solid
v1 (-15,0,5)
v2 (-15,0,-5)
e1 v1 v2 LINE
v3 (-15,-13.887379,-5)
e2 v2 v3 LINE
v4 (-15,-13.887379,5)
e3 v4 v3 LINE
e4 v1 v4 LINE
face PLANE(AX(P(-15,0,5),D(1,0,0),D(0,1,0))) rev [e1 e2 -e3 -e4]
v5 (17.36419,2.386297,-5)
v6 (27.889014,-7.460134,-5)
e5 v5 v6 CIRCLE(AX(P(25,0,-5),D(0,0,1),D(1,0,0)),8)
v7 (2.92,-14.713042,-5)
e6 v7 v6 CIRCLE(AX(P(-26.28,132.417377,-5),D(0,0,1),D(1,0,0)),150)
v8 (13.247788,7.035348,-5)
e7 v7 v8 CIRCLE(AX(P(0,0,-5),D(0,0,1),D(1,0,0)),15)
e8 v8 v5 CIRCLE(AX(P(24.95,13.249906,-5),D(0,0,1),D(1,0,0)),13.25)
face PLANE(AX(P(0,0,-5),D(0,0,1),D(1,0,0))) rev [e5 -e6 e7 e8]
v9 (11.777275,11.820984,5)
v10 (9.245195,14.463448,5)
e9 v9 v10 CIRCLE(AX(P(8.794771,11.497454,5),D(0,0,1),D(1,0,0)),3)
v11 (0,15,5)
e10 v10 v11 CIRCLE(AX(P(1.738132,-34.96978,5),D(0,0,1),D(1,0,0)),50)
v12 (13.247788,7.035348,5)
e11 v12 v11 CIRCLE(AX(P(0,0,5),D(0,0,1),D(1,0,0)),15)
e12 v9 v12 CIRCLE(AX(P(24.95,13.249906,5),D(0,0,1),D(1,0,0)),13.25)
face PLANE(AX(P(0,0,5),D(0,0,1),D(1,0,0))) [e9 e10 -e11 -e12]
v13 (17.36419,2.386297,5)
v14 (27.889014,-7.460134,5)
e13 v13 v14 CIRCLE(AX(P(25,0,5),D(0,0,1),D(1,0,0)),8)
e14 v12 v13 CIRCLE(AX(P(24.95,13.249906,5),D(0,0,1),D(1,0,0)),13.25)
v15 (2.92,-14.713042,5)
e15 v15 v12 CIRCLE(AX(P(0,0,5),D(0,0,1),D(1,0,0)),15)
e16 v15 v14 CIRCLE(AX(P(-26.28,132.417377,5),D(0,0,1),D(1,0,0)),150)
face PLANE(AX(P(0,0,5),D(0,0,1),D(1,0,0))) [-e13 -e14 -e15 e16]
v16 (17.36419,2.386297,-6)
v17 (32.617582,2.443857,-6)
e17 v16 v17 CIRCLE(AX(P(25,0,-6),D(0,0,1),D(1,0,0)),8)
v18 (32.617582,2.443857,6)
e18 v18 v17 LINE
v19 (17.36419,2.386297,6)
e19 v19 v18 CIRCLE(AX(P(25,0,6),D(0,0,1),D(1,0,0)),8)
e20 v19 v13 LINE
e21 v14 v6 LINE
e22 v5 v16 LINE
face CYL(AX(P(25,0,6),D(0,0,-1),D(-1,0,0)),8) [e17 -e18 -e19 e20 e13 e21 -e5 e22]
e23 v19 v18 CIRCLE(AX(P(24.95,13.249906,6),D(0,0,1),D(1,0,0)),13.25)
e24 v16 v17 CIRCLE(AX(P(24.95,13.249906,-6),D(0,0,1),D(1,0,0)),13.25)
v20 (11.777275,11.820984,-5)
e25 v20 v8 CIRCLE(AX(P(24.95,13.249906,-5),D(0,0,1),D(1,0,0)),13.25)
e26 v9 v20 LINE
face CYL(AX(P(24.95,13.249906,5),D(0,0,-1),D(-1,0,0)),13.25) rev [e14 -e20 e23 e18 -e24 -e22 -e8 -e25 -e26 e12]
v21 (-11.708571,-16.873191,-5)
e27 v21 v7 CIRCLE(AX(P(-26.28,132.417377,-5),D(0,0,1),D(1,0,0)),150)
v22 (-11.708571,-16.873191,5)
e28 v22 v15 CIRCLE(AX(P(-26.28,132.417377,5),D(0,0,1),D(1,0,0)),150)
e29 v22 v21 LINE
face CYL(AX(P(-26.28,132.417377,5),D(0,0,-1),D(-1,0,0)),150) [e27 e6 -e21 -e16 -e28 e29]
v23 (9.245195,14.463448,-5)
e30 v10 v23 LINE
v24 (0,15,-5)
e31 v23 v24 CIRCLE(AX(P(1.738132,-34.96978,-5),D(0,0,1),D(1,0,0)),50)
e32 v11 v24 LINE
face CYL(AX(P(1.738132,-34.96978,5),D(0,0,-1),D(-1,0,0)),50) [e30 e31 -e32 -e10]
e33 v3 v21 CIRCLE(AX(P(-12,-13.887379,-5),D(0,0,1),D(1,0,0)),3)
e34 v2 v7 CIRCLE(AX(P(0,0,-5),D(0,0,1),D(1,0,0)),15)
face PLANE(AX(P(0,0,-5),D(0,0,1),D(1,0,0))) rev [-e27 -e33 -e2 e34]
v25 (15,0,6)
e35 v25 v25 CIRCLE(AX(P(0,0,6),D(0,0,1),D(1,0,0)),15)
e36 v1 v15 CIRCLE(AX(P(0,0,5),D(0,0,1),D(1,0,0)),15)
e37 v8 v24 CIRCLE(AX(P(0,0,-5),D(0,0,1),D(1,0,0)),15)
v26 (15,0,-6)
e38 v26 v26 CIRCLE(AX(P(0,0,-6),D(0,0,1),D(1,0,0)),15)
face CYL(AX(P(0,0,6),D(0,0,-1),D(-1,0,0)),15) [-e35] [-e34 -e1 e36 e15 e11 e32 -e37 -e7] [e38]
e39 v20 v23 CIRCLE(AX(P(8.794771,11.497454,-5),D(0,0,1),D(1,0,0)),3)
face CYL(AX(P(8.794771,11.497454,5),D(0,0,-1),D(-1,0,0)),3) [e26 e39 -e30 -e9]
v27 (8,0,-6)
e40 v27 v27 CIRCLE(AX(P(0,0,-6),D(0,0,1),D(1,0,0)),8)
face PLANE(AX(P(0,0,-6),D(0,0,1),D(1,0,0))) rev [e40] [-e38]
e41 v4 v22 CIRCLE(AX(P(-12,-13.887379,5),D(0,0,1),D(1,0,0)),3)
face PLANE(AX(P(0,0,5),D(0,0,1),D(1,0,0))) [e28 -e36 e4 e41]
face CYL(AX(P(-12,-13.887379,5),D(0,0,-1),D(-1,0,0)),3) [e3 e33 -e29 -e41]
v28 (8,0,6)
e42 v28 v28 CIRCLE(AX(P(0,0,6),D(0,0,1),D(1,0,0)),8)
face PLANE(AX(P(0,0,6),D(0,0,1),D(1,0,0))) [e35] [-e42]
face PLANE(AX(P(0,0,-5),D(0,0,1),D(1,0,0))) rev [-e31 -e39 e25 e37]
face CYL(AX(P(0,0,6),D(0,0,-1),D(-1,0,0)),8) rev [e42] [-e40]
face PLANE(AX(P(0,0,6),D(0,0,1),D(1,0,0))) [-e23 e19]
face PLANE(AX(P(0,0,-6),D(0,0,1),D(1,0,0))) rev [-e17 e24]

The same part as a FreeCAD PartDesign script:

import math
import FreeCAD as App
import Part
import Sketcher
from FreeCAD import Vector

doc = App.newDocument("Part")
body = doc.addObject("PartDesign::Body", "Body")

# Sketch on XY plane
sketch1 = body.newObject("Sketcher::SketchObject", "Sketch")
sketch1.AttachmentSupport = (doc.getObject("XY_Plane"), [""])
sketch1.MapMode = "FlatFace"
sketch1.addGeometry(Part.Circle(Vector(0, 0, 0), Vector(0, 0, 1), 15), False)
sketch1.addGeometry(Part.Circle(Vector(0, 0, 0), Vector(0, 0, 1), 8), False)
sketch1.addConstraint(Sketcher.Constraint("Coincident", 0, 3, -1, 1))
sketch1.addConstraint(Sketcher.Constraint("Coincident", 1, 3, -1, 1))
sketch1.addConstraint(Sketcher.Constraint("Diameter", 0, 30.0))
sketch1.addConstraint(Sketcher.Constraint("Diameter", 1, 16.0))
pad1 = body.newObject("PartDesign::Pad", "Pad")
pad1.Profile = sketch1
pad1.Length = 12
pad1.Midplane = True
body2 = doc.addObject("PartDesign::Body", "Body001")

# Sketch on XY plane
sketch2 = body2.newObject("Sketcher::SketchObject", "Sketch001")
sketch2.AttachmentSupport = (doc.getObject("XY_Plane001"), [""])
sketch2.MapMode = "FlatFace"
sketch2.addGeometry(Part.ArcOfCircle(Part.Circle(Vector(25, 0, 0), Vector(0, 0, 1), 8), math.radians(163), math.radians(291)), False)
sketch2.addGeometry(Part.ArcOfCircle(Part.Circle(Vector(25, 0, 0), Vector(0, 0, 1), 8), math.radians(-69), math.radians(18)), False)
sketch2.addGeometry(Part.ArcOfCircle(Part.Circle(Vector(25, 13, 0), Vector(0, 0, 1), 13), math.radians(-125), math.radians(-55)), False)
sketch2.addConstraint(Sketcher.Constraint("Tangent", 0, 2, 1, 1))
sketch2.addConstraint(Sketcher.Constraint("Coincident", 1, 2, 2, 2))
sketch2.addConstraint(Sketcher.Constraint("Coincident", 2, 1, 0, 1))
sketch2.addConstraint(Sketcher.Constraint("Equal", 0, 1))
sketch2.addConstraint(Sketcher.Constraint("PointOnObject", 0, 3, -1))
sketch2.addConstraint(Sketcher.Constraint("Radius", 0, 8.0))
sketch2.addConstraint(Sketcher.Constraint("Radius", 2, 13.25))
sketch2.addConstraint(Sketcher.Constraint("DistanceX", -1, 1, 0, 3, 25.0))
sketch2.addConstraint(Sketcher.Constraint("DistanceX", -1, 1, 2, 3, 24.95))
sketch2.addConstraint(Sketcher.Constraint("DistanceX", -1, 1, 2, 1, 17.36419))
sketch2.addConstraint(Sketcher.Constraint("DistanceY", 0, 2, 2, 3, 20.71004))
pad2 = body2.newObject("PartDesign::Pad", "Pad001")
pad2.Profile = sketch2
pad2.Length = 12
pad2.Midplane = True
body.AllowCompound = True
doc.recompute()

boolean = body.newObject("PartDesign::Boolean", "Boolean")
boolean.Type = "Fuse"
boolean.addObjects([body2])

# Sketch on XY plane
sketch3 = body.newObject("Sketcher::SketchObject", "Sketch002")
sketch3.AttachmentSupport = (doc.getObject("XY_Plane"), [""])
sketch3.MapMode = "FlatFace"
sketch3.addGeometry(Part.ArcOfCircle(Part.Circle(Vector(0, 0, 0), Vector(0, 0, 1), 15), math.radians(-79), math.radians(0)), False)
sketch3.addGeometry(Part.ArcOfCircle(Part.Circle(Vector(-26.3, 132.4, 0), Vector(0, 0, 1), 150), math.radians(-78.77), math.radians(-68.83)), False)
sketch3.addGeometry(Part.ArcOfCircle(Part.Circle(Vector(25, 0, 0), Vector(0, 0, 1), 8), math.radians(163), math.radians(291)), False)
sketch3.addGeometry(Part.ArcOfCircle(Part.Circle(Vector(24.9, 13.2, 0), Vector(0, 0, 1), 13.3), math.radians(-152), math.radians(-125)), False)
sketch3.addGeometry(Part.ArcOfCircle(Part.Circle(Vector(0, 0, 0), Vector(0, 0, 1), 15), math.radians(0), math.radians(28)), False)
sketch3.addGeometry(Part.ArcOfCircle(Part.Circle(Vector(0, 0, 0), Vector(0, 0, 1), 15), math.radians(180), math.radians(281)), False)
sketch3.addGeometry(Part.LineSegment(Vector(-15, 0, 0), Vector(-15, -13.9, 0)), False)
sketch3.addGeometry(Part.ArcOfCircle(Part.Circle(Vector(-12, -13.9, 0), Vector(0, 0, 1), 3), math.radians(180), math.radians(276)), False)
sketch3.addGeometry(Part.ArcOfCircle(Part.Circle(Vector(-26.3, 132.4, 0), Vector(0, 0, 1), 150), math.radians(-84.43), math.radians(-78.77)), False)
sketch3.addGeometry(Part.ArcOfCircle(Part.Circle(Vector(1.7, -35, 0), Vector(0, 0, 1), 50), math.radians(81.36), math.radians(91.99)), False)
sketch3.addGeometry(Part.ArcOfCircle(Part.Circle(Vector(0, 0, 0), Vector(0, 0, 1), 15), math.radians(28), math.radians(90)), False)
sketch3.addGeometry(Part.ArcOfCircle(Part.Circle(Vector(25, 13.2, 0), Vector(0, 0, 1), 13.3), math.radians(-174), math.radians(-152)), False)
sketch3.addGeometry(Part.ArcOfCircle(Part.Circle(Vector(8.8, 11.5, 0), Vector(0, 0, 1), 3), math.radians(6), math.radians(81)), False)
sketch3.addConstraint(Sketcher.Constraint("Tangent", 0, 1, 1, 1))
sketch3.addConstraint(Sketcher.Constraint("Tangent", 1, 2, 2, 2))
sketch3.addConstraint(Sketcher.Constraint("Coincident", 2, 1, 3, 2))
sketch3.addConstraint(Sketcher.Constraint("Tangent", 3, 1, 4, 2))
sketch3.addConstraint(Sketcher.Constraint("Tangent", 4, 1, 0, 2))
sketch3.addConstraint(Sketcher.Constraint("Tangent", 5, 1, 6, 1))
sketch3.addConstraint(Sketcher.Constraint("Tangent", 6, 2, 7, 1))
sketch3.addConstraint(Sketcher.Constraint("Tangent", 7, 2, 8, 1))
sketch3.addConstraint(Sketcher.Constraint("Tangent", 8, 2, 5, 2))
sketch3.addConstraint(Sketcher.Constraint("Coincident", 9, 2, 10, 2))
sketch3.addConstraint(Sketcher.Constraint("Tangent", 10, 1, 11, 2))
sketch3.addConstraint(Sketcher.Constraint("Tangent", 11, 1, 12, 1))
sketch3.addConstraint(Sketcher.Constraint("Tangent", 12, 2, 9, 1))
sketch3.addConstraint(Sketcher.Constraint("Vertical", 6))
sketch3.addConstraint(Sketcher.Constraint("Coincident", 0, 3, -1, 1))
sketch3.addConstraint(Sketcher.Constraint("Coincident", 5, 3, -1, 1))
sketch3.addConstraint(Sketcher.Constraint("Coincident", 10, 3, -1, 1))
sketch3.addConstraint(Sketcher.Constraint("Coincident", 8, 3, 1, 3))
sketch3.addConstraint(Sketcher.Constraint("Coincident", 11, 3, 3, 3))
sketch3.addConstraint(Sketcher.Constraint("Coincident", 10, 1, 3, 1))
sketch3.addConstraint(Sketcher.Constraint("Equal", 4, 5))
sketch3.addConstraint(Sketcher.Constraint("Equal", 7, 12))
sketch3.addConstraint(Sketcher.Constraint("PointOnObject", 2, 3, -1))
sketch3.addConstraint(Sketcher.Constraint("PointOnObject", 4, 1, -1))
sketch3.addConstraint(Sketcher.Constraint("PointOnObject", 9, 2, -2))
sketch3.addConstraint(Sketcher.Constraint("Radius", 0, 15.0))
sketch3.addConstraint(Sketcher.Constraint("Radius", 1, 150.0))
sketch3.addConstraint(Sketcher.Constraint("Radius", 2, 8.0))
sketch3.addConstraint(Sketcher.Constraint("Radius", 7, 3.0))
sketch3.addConstraint(Sketcher.Constraint("Radius", 9, 50.0))
sketch3.addConstraint(Sketcher.Constraint("Radius", 3, 13.25))
sketch3.addConstraint(Sketcher.Constraint("DistanceX", -1, 1, 2, 3, 25.0))
sketch3.addConstraint(Sketcher.Constraint("DistanceX", -1, 1, 3, 3, 24.95))
sketch3.addConstraint(Sketcher.Constraint("DistanceY", 9, 3, 7, 3, 21.0824))
pad3 = body.newObject("PartDesign::Pad", "Pad002")
pad3.Profile = sketch3
pad3.Length = 10
pad3.Midplane = True

doc.recompute()
